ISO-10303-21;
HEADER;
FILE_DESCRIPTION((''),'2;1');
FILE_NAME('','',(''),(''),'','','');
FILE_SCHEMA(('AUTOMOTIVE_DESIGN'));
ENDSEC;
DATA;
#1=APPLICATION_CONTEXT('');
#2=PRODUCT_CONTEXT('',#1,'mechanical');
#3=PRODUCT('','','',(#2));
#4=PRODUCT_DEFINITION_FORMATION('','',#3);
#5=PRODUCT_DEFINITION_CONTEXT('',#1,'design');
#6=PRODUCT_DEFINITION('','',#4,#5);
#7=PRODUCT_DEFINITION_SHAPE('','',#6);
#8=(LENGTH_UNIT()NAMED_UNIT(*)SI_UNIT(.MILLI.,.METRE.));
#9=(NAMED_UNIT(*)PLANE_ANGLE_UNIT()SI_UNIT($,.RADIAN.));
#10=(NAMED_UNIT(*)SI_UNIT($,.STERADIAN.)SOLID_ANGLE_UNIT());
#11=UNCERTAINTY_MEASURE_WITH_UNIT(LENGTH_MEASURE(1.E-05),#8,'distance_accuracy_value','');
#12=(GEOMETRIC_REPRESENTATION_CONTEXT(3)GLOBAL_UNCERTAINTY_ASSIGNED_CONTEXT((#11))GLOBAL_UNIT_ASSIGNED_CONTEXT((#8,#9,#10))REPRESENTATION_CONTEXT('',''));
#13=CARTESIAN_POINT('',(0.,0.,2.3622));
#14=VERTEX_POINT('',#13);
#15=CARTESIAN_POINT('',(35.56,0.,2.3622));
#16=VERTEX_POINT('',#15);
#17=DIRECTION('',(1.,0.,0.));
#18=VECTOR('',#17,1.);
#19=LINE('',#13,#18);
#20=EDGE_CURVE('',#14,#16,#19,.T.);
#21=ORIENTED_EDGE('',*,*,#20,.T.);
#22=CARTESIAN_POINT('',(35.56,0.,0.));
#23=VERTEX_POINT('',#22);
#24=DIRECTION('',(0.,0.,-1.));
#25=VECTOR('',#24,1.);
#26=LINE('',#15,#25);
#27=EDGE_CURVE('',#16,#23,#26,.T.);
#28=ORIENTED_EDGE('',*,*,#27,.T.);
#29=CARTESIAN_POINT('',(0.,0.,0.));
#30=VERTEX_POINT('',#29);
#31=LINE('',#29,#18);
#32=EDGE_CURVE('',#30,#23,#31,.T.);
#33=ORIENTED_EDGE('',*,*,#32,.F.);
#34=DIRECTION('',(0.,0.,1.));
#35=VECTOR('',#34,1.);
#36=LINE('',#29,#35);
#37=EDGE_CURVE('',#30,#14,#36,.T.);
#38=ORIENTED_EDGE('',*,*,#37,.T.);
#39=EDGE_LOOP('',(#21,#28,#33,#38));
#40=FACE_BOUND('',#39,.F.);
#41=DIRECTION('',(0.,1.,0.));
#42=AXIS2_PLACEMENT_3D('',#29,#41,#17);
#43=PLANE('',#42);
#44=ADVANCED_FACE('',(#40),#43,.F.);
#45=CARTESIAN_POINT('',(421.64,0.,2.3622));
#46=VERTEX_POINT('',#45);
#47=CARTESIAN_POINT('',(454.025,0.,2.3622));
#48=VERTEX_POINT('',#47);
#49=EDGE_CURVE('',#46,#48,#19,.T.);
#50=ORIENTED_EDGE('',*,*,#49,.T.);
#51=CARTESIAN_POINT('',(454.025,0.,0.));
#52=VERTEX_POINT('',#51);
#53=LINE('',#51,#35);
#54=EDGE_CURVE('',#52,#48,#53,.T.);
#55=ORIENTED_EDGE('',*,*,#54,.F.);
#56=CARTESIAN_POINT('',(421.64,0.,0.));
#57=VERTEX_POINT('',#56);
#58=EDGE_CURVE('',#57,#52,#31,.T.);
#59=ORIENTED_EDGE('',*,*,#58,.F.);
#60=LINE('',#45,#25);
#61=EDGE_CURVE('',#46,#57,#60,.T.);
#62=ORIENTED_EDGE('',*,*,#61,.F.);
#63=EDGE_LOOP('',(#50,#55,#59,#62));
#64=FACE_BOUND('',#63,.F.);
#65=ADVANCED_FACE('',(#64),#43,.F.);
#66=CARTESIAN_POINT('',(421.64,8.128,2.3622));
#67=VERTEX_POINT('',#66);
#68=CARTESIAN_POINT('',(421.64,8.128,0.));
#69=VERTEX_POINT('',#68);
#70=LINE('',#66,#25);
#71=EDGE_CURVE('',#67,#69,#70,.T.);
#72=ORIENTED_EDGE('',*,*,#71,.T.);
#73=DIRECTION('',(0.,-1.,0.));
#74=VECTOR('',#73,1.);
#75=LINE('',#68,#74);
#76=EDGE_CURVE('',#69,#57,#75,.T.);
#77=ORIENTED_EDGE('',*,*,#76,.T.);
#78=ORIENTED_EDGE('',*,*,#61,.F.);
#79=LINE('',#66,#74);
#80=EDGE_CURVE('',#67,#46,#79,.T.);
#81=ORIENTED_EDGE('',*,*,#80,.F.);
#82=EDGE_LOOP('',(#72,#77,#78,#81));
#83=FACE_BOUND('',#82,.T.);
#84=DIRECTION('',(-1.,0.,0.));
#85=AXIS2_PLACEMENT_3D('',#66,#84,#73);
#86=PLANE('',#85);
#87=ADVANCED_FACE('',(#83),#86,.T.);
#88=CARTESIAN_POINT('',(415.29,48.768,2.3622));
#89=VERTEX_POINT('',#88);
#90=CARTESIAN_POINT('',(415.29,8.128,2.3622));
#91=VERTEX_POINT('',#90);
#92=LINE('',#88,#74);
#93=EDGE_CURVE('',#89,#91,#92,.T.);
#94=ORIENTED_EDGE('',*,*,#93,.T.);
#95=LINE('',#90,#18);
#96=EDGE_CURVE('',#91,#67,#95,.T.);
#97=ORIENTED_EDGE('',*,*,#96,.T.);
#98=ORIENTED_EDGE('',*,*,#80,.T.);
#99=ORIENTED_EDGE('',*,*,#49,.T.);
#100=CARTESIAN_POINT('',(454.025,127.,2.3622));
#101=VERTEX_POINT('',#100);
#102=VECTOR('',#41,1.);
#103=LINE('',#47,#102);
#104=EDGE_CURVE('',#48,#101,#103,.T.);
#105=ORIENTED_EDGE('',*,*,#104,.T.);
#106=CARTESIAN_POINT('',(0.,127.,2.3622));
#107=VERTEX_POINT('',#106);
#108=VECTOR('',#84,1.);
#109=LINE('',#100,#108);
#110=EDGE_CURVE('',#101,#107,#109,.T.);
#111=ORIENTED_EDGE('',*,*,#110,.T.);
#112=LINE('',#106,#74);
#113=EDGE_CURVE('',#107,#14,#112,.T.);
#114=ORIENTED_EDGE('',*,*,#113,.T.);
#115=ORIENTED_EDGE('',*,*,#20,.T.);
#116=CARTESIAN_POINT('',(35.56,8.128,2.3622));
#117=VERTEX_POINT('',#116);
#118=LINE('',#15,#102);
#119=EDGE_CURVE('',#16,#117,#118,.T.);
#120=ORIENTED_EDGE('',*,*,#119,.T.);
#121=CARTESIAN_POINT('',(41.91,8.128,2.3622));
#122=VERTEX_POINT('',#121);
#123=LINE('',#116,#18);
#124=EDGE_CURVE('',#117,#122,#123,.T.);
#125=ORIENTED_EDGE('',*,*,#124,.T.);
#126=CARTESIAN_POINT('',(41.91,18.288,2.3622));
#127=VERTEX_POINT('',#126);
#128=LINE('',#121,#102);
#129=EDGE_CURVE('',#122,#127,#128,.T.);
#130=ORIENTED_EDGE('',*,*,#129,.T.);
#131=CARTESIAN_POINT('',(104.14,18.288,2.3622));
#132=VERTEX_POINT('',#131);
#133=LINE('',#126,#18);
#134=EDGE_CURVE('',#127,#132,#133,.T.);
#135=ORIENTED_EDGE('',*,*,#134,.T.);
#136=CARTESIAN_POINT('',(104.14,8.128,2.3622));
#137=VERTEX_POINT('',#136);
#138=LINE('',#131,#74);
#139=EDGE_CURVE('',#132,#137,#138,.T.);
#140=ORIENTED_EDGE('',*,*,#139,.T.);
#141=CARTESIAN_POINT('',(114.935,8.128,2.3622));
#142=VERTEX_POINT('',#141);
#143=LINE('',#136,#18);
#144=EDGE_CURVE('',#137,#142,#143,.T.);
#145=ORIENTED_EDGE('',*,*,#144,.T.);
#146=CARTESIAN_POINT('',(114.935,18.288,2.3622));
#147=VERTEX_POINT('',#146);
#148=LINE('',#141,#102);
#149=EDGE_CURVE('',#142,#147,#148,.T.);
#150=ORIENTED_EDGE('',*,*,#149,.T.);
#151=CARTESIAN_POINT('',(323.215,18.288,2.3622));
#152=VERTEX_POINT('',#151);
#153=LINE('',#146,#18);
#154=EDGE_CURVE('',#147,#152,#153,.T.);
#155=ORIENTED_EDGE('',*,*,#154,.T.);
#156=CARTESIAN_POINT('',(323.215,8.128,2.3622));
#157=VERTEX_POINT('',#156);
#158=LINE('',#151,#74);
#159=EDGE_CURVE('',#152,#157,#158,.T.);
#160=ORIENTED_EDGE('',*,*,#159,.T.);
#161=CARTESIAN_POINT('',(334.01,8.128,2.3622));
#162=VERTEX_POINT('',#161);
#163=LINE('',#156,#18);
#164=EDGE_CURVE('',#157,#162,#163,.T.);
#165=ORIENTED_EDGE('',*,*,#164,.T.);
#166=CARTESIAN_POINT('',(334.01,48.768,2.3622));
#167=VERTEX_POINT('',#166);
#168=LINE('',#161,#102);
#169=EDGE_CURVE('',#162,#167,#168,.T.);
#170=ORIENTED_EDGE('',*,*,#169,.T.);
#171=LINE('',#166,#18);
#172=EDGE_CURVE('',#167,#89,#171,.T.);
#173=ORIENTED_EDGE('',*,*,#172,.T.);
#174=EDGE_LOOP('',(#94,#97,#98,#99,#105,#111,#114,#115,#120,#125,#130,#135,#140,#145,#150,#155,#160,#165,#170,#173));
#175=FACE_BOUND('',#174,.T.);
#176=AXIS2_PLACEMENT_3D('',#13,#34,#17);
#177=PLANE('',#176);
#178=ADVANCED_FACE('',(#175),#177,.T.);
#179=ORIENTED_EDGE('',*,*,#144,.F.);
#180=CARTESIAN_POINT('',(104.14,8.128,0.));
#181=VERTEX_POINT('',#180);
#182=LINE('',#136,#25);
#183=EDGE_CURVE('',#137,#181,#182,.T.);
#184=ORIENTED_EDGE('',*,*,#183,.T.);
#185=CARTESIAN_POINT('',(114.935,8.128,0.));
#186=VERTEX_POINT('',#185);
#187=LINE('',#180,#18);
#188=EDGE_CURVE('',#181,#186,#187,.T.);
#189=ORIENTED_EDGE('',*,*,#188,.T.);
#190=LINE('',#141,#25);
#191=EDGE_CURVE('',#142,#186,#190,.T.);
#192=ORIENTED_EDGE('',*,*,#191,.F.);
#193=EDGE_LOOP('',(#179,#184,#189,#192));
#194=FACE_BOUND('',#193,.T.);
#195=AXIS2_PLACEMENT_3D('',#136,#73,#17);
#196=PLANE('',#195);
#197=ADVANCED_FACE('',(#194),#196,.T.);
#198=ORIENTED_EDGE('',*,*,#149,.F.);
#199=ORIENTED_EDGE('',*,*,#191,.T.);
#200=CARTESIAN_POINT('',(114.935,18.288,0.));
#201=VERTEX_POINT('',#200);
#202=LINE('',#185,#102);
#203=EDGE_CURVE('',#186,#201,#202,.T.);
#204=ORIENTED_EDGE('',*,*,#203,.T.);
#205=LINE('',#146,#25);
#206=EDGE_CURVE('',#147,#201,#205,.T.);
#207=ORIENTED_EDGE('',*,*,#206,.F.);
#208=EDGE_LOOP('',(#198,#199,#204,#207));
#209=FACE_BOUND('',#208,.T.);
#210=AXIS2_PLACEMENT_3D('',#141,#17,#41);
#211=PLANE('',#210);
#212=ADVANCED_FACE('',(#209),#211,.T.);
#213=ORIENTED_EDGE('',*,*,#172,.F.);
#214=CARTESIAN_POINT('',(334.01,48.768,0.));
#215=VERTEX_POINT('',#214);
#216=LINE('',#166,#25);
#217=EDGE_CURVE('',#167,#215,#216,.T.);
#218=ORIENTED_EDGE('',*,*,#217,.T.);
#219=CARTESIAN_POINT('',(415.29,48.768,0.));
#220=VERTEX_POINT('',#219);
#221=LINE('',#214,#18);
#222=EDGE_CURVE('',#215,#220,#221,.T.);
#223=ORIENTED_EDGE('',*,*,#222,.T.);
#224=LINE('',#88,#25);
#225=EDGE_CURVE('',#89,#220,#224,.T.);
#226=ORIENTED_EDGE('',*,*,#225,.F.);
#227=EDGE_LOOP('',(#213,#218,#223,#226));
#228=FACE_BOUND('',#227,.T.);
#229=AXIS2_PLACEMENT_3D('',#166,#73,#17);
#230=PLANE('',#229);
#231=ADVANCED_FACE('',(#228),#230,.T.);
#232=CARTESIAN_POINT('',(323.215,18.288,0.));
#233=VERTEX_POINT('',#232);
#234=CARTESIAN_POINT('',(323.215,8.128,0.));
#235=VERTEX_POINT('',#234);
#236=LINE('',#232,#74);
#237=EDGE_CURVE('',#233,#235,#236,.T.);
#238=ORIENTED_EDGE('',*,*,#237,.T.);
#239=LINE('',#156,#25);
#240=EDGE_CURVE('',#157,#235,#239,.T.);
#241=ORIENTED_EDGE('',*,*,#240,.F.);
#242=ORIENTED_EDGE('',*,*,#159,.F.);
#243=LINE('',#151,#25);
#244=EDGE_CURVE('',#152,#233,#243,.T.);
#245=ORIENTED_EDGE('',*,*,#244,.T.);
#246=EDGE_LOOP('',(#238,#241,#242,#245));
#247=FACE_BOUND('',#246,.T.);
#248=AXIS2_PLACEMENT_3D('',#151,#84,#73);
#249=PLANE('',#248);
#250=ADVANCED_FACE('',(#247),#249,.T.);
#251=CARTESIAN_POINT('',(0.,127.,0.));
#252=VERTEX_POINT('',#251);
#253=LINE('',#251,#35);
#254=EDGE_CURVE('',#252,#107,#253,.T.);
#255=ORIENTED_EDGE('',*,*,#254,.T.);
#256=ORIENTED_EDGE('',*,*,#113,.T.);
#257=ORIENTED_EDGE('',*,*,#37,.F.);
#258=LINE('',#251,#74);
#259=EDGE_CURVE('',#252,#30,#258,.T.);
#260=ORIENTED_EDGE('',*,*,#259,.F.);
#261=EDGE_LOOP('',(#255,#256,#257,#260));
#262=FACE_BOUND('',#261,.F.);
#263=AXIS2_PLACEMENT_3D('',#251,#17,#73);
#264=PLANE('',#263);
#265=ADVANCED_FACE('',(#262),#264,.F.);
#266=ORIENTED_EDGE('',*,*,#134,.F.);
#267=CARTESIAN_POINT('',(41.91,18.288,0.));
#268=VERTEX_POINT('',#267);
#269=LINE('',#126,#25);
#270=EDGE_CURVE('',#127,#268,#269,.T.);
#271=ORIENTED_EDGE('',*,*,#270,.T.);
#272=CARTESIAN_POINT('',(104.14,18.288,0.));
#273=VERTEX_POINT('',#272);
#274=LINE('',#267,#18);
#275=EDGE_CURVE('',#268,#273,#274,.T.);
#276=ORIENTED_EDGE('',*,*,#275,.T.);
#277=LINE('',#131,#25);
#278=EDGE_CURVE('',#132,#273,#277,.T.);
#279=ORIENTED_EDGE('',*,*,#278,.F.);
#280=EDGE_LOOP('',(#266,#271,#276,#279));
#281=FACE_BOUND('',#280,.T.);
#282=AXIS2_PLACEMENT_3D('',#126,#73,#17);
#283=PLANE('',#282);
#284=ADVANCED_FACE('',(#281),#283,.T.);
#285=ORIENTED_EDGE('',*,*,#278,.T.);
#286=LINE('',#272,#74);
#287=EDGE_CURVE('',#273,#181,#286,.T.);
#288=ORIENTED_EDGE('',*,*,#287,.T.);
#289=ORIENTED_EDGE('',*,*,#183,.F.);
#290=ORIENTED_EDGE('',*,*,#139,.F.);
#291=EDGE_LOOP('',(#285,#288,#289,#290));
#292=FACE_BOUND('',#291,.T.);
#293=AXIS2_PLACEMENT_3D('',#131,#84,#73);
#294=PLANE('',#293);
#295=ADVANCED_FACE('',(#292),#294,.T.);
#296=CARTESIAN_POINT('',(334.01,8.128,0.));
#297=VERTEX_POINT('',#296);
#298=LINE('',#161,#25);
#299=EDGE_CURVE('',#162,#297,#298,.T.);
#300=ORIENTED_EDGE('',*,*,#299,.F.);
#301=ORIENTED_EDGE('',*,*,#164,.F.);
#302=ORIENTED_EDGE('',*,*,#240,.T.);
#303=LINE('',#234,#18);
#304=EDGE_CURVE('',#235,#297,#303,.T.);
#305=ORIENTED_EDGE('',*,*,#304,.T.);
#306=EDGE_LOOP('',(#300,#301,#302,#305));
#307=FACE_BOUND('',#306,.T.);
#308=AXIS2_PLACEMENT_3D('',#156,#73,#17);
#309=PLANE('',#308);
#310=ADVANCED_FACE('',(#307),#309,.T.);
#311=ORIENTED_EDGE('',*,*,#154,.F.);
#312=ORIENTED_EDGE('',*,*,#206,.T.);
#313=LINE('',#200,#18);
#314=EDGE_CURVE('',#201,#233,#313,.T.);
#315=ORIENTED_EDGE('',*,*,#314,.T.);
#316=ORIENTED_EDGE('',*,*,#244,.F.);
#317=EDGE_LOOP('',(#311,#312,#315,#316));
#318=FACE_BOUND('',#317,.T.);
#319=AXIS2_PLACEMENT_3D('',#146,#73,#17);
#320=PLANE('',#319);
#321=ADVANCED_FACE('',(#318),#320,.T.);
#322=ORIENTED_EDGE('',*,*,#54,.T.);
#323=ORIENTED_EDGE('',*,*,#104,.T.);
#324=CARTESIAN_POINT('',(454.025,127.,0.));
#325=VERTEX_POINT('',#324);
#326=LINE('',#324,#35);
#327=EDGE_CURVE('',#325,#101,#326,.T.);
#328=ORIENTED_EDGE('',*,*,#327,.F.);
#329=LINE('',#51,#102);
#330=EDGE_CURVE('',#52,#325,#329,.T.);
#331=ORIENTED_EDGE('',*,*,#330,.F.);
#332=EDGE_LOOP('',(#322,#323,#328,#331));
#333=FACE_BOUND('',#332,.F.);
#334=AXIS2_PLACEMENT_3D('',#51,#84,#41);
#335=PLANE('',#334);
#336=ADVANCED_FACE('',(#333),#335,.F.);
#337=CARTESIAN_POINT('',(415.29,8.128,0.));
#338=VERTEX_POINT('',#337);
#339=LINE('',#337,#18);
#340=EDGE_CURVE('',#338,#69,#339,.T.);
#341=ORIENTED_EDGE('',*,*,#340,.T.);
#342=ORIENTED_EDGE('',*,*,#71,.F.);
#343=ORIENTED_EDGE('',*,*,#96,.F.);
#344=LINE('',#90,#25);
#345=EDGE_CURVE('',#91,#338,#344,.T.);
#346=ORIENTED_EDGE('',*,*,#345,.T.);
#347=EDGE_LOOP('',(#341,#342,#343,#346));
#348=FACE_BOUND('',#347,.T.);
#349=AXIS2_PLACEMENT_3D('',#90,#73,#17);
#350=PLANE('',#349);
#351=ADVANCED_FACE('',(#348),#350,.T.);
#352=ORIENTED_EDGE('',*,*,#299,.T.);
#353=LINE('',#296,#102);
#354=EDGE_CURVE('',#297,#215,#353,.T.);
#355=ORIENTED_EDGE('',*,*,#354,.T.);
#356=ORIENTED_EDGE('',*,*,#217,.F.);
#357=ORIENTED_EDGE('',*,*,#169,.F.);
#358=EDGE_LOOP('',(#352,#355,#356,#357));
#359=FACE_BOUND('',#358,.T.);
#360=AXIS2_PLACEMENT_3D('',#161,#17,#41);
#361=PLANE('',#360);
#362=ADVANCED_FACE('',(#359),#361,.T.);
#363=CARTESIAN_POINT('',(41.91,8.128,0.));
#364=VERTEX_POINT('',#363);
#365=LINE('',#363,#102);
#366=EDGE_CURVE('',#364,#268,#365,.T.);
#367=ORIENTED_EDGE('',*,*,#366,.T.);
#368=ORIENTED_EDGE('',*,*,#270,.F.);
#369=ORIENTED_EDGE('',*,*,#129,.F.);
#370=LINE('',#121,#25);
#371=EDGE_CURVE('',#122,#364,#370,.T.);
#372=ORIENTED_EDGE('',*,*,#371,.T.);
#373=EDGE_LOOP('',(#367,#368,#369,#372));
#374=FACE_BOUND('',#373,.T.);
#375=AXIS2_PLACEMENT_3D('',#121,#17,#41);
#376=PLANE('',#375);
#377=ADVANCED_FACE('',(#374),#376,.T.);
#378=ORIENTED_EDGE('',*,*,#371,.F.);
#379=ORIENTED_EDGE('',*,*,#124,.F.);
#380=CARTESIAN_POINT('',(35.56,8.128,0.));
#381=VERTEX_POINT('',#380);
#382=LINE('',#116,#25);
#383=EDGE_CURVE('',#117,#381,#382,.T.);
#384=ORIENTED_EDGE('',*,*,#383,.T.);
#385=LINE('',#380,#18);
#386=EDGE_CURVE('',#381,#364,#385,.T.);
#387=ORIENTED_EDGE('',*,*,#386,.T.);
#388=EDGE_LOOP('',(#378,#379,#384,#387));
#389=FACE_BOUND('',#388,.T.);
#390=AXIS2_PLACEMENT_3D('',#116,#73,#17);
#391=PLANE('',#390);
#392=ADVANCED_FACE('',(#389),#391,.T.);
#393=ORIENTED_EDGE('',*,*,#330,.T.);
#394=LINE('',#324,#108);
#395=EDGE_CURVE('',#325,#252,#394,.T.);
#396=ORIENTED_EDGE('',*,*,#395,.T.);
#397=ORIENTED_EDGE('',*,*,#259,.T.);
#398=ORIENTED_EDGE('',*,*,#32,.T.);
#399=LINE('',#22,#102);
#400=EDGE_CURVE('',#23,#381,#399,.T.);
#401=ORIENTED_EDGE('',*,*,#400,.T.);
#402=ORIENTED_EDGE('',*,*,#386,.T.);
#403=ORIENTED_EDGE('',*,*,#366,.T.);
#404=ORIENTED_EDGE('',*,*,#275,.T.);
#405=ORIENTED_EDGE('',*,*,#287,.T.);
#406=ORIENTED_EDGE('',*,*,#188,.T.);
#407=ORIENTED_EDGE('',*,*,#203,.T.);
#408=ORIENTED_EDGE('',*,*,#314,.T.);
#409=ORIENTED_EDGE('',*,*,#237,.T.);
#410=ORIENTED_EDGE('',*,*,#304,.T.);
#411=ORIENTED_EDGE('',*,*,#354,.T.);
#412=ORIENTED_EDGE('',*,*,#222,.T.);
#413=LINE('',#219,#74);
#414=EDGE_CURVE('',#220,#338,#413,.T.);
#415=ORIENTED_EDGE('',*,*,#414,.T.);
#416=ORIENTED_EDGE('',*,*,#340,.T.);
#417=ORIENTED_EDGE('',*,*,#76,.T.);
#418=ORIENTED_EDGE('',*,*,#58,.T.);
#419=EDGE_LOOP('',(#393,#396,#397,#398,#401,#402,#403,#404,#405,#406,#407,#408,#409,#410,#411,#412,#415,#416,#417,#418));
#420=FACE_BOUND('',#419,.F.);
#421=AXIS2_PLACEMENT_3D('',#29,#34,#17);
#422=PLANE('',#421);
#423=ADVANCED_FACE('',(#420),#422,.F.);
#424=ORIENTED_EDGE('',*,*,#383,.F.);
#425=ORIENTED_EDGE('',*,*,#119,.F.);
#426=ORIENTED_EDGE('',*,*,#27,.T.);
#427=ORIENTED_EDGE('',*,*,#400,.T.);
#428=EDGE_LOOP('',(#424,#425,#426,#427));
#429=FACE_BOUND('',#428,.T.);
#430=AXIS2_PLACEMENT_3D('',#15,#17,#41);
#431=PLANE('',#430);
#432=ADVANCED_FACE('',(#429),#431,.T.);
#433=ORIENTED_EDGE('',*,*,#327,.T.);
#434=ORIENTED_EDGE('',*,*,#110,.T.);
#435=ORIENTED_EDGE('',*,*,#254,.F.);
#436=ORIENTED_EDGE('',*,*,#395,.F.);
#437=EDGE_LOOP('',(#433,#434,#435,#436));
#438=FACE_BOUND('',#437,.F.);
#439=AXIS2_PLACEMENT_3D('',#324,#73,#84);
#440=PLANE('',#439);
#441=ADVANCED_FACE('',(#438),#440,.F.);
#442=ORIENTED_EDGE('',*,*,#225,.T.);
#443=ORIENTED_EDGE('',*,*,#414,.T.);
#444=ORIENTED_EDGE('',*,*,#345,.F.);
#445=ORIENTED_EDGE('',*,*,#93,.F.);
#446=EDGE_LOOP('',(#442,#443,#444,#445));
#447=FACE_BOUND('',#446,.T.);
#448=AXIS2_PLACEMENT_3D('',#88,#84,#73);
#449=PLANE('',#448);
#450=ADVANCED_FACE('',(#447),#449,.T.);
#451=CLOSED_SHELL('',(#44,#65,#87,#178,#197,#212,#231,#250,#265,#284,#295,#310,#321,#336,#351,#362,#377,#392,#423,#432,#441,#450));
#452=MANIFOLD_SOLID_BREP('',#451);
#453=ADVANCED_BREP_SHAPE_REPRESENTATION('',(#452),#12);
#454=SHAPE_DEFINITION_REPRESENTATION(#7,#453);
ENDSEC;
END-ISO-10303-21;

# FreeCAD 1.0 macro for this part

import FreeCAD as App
import Part
import Sketcher

V = App.Vector
Q = App.Units.Quantity


def add_polygon(sketch, points):
    """Adds a closed chain of lines whose ends are joined by coincident constraints."""
    first, n = sketch.GeometryCount, len(points)
    for a, b in zip(points, points[1:] + points[:1]):
        sketch.addGeometry(Part.LineSegment(App.Vector(*a, 0), App.Vector(*b, 0)), False)
    for i in range(n):
        sketch.addConstraint(Sketcher.Constraint("Coincident", first + i, 2, first + (i + 1) % n, 1))

doc = App.newDocument("Part")
body = doc.addObject("PartDesign::Body", "Body")

sketch1 = body.newObject("Sketcher::SketchObject", "Sketch")
sketch1.AttachmentSupport = (doc.getObject("XY_Plane"), [""])
sketch1.MapMode = "FlatFace"
add_polygon(sketch1, [(0, 127), (0, 0), (454, 0), (454, 127)])
sketch1.addConstraint([
    Sketcher.Constraint("Vertical", 0),
    Sketcher.Constraint("Horizontal", 1),
    Sketcher.Constraint("Vertical", 2),
    Sketcher.Constraint("Horizontal", 3),
    Sketcher.Constraint("Coincident", 0, 2, -1, 1),
    Sketcher.Constraint("DistanceY", 0, 2, 0, 1, Q("5 in")),
    Sketcher.Constraint("DistanceX", 1, 1, 1, 2, Q("17.875 in")),
])
pad1 = body.newObject("PartDesign::Pad", "Pad")
pad1.Profile = sketch1
pad1.Length = Q("0.093 in")

sketch2 = body.newObject("Sketcher::SketchObject", "Sketch001")
sketch2.AttachmentSupport = (doc.getObject("XY_Plane"), [""])
sketch2.MapMode = "FlatFace"
sketch2.AttachmentOffset = App.Placement(V(0, 0, 0.093 * 25.4), App.Rotation())
add_polygon(sketch2, [(36, 8), (36, 0), (422, 0), (422, 8), (415, 8), (415, 49), (334, 49), (334, 8), (323, 8), (323, 18), (115, 18), (115, 8), (104, 8), (104, 18), (42, 18), (42, 8)])
sketch2.addConstraint([
    Sketcher.Constraint("Vertical", 0),
    Sketcher.Constraint("Horizontal", 1),
    Sketcher.Constraint("Vertical", 2),
    Sketcher.Constraint("Horizontal", 3),
    Sketcher.Constraint("Vertical", 4),
    Sketcher.Constraint("Horizontal", 5),
    Sketcher.Constraint("Vertical", 6),
    Sketcher.Constraint("Horizontal", 7),
    Sketcher.Constraint("Vertical", 8),
    Sketcher.Constraint("Horizontal", 9),
    Sketcher.Constraint("Vertical", 10),
    Sketcher.Constraint("Horizontal", 11),
    Sketcher.Constraint("Vertical", 12),
    Sketcher.Constraint("Horizontal", 13),
    Sketcher.Constraint("Vertical", 14),
    Sketcher.Constraint("Horizontal", 15),
    Sketcher.Constraint("PointOnObject", 0, 2, -1),
    Sketcher.Constraint("Horizontal", 3, 2, 6, 2),
    Sketcher.Constraint("Horizontal", 7, 2, 10, 2),
    Sketcher.Constraint("Horizontal", 9, 2, 12, 2),
    Sketcher.Constraint("Horizontal", 11, 2, 14, 2),
    Sketcher.Constraint("Equal", 7, 11),
    Sketcher.Constraint("Equal", 3, 15),
    Sketcher.Constraint("DistanceX", 5, 2, 5, 1, Q("3.2 in")),
    Sketcher.Constraint("DistanceX", 9, 2, 9, 1, Q("8.2 in")),
    Sketcher.Constraint("DistanceY", 4, 1, 4, 2, Q("1.6 in")),
    Sketcher.Constraint("DistanceY", 8, 1, 8, 2, Q("0.4 in")),
    Sketcher.Constraint("DistanceX", 3, 2, 3, 1, Q("0.25 in")),
    Sketcher.Constraint("DistanceX", 13, 2, 13, 1, Q("2.45 in")),
    Sketcher.Constraint("DistanceY", 0, 2, 0, 1, Q("0.32 in")),
    Sketcher.Constraint("DistanceX", -1, 1, 0, 2, Q("1.4 in")),
    Sketcher.Constraint("DistanceX", 7, 2, 7, 1, Q("0.425 in")),
])
pocket1 = body.newObject("PartDesign::Pocket", "Pocket")
pocket1.Profile = sketch2
pocket1.Length = Q("0.093 in")

doc.recompute()
